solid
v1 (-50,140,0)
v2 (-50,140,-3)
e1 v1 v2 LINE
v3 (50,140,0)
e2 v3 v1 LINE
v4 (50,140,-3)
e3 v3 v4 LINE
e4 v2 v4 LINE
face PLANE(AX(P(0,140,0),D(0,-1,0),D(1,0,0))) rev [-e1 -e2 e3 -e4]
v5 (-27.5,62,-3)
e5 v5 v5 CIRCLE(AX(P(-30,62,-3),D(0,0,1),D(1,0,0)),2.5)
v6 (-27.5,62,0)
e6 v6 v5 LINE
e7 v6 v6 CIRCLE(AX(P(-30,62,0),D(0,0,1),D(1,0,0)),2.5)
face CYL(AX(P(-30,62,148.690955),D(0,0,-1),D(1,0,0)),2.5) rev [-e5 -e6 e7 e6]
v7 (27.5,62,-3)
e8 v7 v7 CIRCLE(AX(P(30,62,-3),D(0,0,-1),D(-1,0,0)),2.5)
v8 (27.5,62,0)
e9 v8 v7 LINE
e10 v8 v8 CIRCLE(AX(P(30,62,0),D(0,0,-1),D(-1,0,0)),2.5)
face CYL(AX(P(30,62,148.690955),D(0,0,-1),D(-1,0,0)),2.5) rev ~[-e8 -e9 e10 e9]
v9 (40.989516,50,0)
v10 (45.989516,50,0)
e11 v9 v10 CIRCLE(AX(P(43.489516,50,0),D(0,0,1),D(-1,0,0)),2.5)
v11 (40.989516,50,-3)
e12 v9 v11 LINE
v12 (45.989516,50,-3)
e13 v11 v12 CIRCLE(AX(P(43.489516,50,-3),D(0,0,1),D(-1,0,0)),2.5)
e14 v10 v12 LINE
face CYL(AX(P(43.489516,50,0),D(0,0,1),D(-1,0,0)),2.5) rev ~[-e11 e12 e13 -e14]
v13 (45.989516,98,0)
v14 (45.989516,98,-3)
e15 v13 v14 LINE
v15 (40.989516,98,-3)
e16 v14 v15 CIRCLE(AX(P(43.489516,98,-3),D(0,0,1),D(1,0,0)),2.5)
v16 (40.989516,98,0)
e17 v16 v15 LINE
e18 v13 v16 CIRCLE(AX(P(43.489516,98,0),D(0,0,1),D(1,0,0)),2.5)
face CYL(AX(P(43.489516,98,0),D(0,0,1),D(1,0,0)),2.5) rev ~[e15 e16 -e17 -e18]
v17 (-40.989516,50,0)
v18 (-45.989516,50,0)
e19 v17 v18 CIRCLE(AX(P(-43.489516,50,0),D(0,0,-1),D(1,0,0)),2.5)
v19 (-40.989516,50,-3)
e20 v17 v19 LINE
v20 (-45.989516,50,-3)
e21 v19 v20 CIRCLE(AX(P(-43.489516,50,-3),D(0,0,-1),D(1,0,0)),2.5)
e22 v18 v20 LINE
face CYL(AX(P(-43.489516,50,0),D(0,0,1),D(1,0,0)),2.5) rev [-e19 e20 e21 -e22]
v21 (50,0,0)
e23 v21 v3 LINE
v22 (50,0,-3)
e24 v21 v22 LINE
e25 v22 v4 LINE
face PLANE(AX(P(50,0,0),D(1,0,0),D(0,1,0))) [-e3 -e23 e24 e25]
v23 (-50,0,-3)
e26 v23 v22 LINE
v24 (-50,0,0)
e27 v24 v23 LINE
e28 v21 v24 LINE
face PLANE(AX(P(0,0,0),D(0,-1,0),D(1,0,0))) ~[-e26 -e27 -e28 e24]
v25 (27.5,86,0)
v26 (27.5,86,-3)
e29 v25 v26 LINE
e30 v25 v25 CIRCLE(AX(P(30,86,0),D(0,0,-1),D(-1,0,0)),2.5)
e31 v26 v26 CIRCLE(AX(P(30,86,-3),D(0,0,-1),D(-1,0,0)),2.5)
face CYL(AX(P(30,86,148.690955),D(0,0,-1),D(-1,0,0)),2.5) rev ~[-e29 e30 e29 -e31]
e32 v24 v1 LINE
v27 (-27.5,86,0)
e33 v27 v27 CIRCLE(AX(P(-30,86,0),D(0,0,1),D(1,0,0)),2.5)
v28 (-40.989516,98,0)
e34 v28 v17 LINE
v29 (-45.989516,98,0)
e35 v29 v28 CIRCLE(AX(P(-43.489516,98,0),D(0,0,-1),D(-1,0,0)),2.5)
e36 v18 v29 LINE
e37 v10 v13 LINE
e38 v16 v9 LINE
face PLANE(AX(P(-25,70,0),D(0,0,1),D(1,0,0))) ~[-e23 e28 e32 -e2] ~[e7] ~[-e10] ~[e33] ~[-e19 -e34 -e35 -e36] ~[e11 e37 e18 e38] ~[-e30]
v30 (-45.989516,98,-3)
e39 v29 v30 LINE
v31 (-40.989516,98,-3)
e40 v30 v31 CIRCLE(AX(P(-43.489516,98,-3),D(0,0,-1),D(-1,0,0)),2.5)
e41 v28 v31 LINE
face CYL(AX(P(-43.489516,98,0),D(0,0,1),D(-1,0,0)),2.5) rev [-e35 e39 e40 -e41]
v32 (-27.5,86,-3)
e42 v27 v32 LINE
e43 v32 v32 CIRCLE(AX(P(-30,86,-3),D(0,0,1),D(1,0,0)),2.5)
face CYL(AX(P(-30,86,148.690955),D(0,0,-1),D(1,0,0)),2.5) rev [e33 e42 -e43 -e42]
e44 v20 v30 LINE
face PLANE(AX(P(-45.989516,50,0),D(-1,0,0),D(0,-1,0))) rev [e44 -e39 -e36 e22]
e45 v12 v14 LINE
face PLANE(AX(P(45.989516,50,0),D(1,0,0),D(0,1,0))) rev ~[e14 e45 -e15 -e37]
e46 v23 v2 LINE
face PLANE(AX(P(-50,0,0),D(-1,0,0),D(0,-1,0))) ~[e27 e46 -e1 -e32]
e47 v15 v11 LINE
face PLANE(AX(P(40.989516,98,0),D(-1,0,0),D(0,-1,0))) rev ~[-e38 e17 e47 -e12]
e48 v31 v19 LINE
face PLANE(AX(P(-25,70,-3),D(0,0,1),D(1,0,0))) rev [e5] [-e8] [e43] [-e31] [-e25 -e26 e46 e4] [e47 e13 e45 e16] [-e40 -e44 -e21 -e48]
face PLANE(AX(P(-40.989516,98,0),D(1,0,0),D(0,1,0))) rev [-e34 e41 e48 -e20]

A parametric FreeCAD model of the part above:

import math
import FreeCAD as App
import Part
import Sketcher

V = App.Vector


def add_polygon(sketch, points):
    """Adds a closed chain of lines whose ends are joined by coincident constraints."""
    first, n = sketch.GeometryCount, len(points)
    for a, b in zip(points, points[1:] + points[:1]):
        sketch.addGeometry(Part.LineSegment(App.Vector(*a, 0), App.Vector(*b, 0)), False)
    for i in range(n):
        sketch.addConstraint(Sketcher.Constraint("Coincident", first + i, 2, first + (i + 1) % n, 1))

doc = App.newDocument("Part")
body = doc.addObject("PartDesign::Body", "Body")

# Sketch on XY plane
sketch1 = body.newObject("Sketcher::SketchObject", "Sketch")
sketch1.AttachmentSupport = (doc.getObject("XY_Plane"), [""])
sketch1.MapMode = "FlatFace"
add_polygon(sketch1, [(0, 140), (0, 0), (50, 0), (50, 140)])  # lines 0-3
sketch1.addConstraint(Sketcher.Constraint("Vertical", 0))
sketch1.addConstraint(Sketcher.Constraint("Horizontal", 1))
sketch1.addConstraint(Sketcher.Constraint("Vertical", 2))
sketch1.addConstraint(Sketcher.Constraint("Horizontal", 3))
sketch1.addConstraint(Sketcher.Constraint("Coincident", 0, 2, -1, 1))
sketch1.addConstraint(Sketcher.Constraint("DistanceX", 1, 1, 1, 2, 50.0))
sketch1.addConstraint(Sketcher.Constraint("DistanceY", 0, 2, 0, 1, 140.0))
pad1 = body.newObject("PartDesign::Pad", "Pad")
pad1.Profile = sketch1
pad1.Length = 3
pad1.Reversed = True

# Sketch on XY plane
sketch2 = body.newObject("Sketcher::SketchObject", "Sketch001")
sketch2.AttachmentSupport = (doc.getObject("XY_Plane"), [""])
sketch2.MapMode = "FlatFace"
sketch2.addGeometry(Part.Circle(V(30, 86, 0), V(0, 0, 1), 2.5), False)
sketch2.addGeometry(Part.Circle(V(30, 62, 0), V(0, 0, 1), 2.5), False)
sketch2.addConstraint(Sketcher.Constraint("Equal", 0, 1))
sketch2.addConstraint(Sketcher.Constraint("Vertical", 0, 3, 1, 3))
sketch2.addConstraint(Sketcher.Constraint("Diameter", 0, 5.0))
sketch2.addConstraint(Sketcher.Constraint("DistanceX", -1, 1, 0, 3, 30.0))
sketch2.addConstraint(Sketcher.Constraint("DistanceY", -1, 1, 0, 3, 86.0))
sketch2.addConstraint(Sketcher.Constraint("DistanceY", -1, 1, 1, 3, 62.0))
doc.recompute()
hole = body.newObject("PartDesign::Hole", "Hole")
hole.Profile = sketch2
hole.ThreadType = "None"
hole.Diameter = 5
hole.DepthType = "ThroughAll"

# Sketch on XY plane
sketch3 = body.newObject("Sketcher::SketchObject", "Sketch002")
sketch3.AttachmentSupport = (doc.getObject("XY_Plane"), [""])
sketch3.MapMode = "FlatFace"
sketch3.addGeometry(Part.ArcOfCircle(Part.Circle(V(43.5, 50, 0), V(0, 0, 1), 2.5), math.radians(180), math.radians(360)), False)
sketch3.addGeometry(Part.LineSegment(V(46, 50, 0), V(46, 98, 0)), False)
sketch3.addGeometry(Part.ArcOfCircle(Part.Circle(V(43.5, 98, 0), V(0, 0, 1), 2.5), math.radians(0), math.radians(180)), False)
sketch3.addGeometry(Part.LineSegment(V(41, 98, 0), V(41, 50, 0)), False)
sketch3.addConstraint(Sketcher.Constraint("Tangent", 0, 2, 1, 1))
sketch3.addConstraint(Sketcher.Constraint("Tangent", 1, 2, 2, 1))
sketch3.addConstraint(Sketcher.Constraint("Tangent", 2, 2, 3, 1))
sketch3.addConstraint(Sketcher.Constraint("Tangent", 3, 2, 0, 1))
sketch3.addConstraint(Sketcher.Constraint("Vertical", 1))
sketch3.addConstraint(Sketcher.Constraint("Vertical", 3))
sketch3.addConstraint(Sketcher.Constraint("Radius", 0, 2.5))
sketch3.addConstraint(Sketcher.Constraint("DistanceY", 1, 1, 1, 2, 48.0))
sketch3.addConstraint(Sketcher.Constraint("DistanceY", -1, 1, 0, 3, 50.0))
sketch3.addConstraint(Sketcher.Constraint("DistanceX", -1, 1, 0, 3, 43.489516))
pocket1 = body.newObject("PartDesign::Pocket", "Pocket")
pocket1.Profile = sketch3
pocket1.Length = 39.832257
body2 = doc.addObject("PartDesign::Body", "Body001")
doc.recompute()

body2.BaseFeature = body
doc.recompute()

mirroring = doc.addObject("Part::Mirroring", "Mirroring")
mirroring.Source = body
mirroring.Base = V(0, 0, 0)
mirroring.Normal = V(1, 0, 0)
body3 = doc.addObject("PartDesign::Body", "Body002")
body3.BaseFeature = mirroring
boolean = body2.newObject("PartDesign::Boolean", "Boolean")
boolean.Type = "Fuse"
boolean.addObjects([body3])
doc.recompute()
mirroring.Visibility = False

doc.recompute()
